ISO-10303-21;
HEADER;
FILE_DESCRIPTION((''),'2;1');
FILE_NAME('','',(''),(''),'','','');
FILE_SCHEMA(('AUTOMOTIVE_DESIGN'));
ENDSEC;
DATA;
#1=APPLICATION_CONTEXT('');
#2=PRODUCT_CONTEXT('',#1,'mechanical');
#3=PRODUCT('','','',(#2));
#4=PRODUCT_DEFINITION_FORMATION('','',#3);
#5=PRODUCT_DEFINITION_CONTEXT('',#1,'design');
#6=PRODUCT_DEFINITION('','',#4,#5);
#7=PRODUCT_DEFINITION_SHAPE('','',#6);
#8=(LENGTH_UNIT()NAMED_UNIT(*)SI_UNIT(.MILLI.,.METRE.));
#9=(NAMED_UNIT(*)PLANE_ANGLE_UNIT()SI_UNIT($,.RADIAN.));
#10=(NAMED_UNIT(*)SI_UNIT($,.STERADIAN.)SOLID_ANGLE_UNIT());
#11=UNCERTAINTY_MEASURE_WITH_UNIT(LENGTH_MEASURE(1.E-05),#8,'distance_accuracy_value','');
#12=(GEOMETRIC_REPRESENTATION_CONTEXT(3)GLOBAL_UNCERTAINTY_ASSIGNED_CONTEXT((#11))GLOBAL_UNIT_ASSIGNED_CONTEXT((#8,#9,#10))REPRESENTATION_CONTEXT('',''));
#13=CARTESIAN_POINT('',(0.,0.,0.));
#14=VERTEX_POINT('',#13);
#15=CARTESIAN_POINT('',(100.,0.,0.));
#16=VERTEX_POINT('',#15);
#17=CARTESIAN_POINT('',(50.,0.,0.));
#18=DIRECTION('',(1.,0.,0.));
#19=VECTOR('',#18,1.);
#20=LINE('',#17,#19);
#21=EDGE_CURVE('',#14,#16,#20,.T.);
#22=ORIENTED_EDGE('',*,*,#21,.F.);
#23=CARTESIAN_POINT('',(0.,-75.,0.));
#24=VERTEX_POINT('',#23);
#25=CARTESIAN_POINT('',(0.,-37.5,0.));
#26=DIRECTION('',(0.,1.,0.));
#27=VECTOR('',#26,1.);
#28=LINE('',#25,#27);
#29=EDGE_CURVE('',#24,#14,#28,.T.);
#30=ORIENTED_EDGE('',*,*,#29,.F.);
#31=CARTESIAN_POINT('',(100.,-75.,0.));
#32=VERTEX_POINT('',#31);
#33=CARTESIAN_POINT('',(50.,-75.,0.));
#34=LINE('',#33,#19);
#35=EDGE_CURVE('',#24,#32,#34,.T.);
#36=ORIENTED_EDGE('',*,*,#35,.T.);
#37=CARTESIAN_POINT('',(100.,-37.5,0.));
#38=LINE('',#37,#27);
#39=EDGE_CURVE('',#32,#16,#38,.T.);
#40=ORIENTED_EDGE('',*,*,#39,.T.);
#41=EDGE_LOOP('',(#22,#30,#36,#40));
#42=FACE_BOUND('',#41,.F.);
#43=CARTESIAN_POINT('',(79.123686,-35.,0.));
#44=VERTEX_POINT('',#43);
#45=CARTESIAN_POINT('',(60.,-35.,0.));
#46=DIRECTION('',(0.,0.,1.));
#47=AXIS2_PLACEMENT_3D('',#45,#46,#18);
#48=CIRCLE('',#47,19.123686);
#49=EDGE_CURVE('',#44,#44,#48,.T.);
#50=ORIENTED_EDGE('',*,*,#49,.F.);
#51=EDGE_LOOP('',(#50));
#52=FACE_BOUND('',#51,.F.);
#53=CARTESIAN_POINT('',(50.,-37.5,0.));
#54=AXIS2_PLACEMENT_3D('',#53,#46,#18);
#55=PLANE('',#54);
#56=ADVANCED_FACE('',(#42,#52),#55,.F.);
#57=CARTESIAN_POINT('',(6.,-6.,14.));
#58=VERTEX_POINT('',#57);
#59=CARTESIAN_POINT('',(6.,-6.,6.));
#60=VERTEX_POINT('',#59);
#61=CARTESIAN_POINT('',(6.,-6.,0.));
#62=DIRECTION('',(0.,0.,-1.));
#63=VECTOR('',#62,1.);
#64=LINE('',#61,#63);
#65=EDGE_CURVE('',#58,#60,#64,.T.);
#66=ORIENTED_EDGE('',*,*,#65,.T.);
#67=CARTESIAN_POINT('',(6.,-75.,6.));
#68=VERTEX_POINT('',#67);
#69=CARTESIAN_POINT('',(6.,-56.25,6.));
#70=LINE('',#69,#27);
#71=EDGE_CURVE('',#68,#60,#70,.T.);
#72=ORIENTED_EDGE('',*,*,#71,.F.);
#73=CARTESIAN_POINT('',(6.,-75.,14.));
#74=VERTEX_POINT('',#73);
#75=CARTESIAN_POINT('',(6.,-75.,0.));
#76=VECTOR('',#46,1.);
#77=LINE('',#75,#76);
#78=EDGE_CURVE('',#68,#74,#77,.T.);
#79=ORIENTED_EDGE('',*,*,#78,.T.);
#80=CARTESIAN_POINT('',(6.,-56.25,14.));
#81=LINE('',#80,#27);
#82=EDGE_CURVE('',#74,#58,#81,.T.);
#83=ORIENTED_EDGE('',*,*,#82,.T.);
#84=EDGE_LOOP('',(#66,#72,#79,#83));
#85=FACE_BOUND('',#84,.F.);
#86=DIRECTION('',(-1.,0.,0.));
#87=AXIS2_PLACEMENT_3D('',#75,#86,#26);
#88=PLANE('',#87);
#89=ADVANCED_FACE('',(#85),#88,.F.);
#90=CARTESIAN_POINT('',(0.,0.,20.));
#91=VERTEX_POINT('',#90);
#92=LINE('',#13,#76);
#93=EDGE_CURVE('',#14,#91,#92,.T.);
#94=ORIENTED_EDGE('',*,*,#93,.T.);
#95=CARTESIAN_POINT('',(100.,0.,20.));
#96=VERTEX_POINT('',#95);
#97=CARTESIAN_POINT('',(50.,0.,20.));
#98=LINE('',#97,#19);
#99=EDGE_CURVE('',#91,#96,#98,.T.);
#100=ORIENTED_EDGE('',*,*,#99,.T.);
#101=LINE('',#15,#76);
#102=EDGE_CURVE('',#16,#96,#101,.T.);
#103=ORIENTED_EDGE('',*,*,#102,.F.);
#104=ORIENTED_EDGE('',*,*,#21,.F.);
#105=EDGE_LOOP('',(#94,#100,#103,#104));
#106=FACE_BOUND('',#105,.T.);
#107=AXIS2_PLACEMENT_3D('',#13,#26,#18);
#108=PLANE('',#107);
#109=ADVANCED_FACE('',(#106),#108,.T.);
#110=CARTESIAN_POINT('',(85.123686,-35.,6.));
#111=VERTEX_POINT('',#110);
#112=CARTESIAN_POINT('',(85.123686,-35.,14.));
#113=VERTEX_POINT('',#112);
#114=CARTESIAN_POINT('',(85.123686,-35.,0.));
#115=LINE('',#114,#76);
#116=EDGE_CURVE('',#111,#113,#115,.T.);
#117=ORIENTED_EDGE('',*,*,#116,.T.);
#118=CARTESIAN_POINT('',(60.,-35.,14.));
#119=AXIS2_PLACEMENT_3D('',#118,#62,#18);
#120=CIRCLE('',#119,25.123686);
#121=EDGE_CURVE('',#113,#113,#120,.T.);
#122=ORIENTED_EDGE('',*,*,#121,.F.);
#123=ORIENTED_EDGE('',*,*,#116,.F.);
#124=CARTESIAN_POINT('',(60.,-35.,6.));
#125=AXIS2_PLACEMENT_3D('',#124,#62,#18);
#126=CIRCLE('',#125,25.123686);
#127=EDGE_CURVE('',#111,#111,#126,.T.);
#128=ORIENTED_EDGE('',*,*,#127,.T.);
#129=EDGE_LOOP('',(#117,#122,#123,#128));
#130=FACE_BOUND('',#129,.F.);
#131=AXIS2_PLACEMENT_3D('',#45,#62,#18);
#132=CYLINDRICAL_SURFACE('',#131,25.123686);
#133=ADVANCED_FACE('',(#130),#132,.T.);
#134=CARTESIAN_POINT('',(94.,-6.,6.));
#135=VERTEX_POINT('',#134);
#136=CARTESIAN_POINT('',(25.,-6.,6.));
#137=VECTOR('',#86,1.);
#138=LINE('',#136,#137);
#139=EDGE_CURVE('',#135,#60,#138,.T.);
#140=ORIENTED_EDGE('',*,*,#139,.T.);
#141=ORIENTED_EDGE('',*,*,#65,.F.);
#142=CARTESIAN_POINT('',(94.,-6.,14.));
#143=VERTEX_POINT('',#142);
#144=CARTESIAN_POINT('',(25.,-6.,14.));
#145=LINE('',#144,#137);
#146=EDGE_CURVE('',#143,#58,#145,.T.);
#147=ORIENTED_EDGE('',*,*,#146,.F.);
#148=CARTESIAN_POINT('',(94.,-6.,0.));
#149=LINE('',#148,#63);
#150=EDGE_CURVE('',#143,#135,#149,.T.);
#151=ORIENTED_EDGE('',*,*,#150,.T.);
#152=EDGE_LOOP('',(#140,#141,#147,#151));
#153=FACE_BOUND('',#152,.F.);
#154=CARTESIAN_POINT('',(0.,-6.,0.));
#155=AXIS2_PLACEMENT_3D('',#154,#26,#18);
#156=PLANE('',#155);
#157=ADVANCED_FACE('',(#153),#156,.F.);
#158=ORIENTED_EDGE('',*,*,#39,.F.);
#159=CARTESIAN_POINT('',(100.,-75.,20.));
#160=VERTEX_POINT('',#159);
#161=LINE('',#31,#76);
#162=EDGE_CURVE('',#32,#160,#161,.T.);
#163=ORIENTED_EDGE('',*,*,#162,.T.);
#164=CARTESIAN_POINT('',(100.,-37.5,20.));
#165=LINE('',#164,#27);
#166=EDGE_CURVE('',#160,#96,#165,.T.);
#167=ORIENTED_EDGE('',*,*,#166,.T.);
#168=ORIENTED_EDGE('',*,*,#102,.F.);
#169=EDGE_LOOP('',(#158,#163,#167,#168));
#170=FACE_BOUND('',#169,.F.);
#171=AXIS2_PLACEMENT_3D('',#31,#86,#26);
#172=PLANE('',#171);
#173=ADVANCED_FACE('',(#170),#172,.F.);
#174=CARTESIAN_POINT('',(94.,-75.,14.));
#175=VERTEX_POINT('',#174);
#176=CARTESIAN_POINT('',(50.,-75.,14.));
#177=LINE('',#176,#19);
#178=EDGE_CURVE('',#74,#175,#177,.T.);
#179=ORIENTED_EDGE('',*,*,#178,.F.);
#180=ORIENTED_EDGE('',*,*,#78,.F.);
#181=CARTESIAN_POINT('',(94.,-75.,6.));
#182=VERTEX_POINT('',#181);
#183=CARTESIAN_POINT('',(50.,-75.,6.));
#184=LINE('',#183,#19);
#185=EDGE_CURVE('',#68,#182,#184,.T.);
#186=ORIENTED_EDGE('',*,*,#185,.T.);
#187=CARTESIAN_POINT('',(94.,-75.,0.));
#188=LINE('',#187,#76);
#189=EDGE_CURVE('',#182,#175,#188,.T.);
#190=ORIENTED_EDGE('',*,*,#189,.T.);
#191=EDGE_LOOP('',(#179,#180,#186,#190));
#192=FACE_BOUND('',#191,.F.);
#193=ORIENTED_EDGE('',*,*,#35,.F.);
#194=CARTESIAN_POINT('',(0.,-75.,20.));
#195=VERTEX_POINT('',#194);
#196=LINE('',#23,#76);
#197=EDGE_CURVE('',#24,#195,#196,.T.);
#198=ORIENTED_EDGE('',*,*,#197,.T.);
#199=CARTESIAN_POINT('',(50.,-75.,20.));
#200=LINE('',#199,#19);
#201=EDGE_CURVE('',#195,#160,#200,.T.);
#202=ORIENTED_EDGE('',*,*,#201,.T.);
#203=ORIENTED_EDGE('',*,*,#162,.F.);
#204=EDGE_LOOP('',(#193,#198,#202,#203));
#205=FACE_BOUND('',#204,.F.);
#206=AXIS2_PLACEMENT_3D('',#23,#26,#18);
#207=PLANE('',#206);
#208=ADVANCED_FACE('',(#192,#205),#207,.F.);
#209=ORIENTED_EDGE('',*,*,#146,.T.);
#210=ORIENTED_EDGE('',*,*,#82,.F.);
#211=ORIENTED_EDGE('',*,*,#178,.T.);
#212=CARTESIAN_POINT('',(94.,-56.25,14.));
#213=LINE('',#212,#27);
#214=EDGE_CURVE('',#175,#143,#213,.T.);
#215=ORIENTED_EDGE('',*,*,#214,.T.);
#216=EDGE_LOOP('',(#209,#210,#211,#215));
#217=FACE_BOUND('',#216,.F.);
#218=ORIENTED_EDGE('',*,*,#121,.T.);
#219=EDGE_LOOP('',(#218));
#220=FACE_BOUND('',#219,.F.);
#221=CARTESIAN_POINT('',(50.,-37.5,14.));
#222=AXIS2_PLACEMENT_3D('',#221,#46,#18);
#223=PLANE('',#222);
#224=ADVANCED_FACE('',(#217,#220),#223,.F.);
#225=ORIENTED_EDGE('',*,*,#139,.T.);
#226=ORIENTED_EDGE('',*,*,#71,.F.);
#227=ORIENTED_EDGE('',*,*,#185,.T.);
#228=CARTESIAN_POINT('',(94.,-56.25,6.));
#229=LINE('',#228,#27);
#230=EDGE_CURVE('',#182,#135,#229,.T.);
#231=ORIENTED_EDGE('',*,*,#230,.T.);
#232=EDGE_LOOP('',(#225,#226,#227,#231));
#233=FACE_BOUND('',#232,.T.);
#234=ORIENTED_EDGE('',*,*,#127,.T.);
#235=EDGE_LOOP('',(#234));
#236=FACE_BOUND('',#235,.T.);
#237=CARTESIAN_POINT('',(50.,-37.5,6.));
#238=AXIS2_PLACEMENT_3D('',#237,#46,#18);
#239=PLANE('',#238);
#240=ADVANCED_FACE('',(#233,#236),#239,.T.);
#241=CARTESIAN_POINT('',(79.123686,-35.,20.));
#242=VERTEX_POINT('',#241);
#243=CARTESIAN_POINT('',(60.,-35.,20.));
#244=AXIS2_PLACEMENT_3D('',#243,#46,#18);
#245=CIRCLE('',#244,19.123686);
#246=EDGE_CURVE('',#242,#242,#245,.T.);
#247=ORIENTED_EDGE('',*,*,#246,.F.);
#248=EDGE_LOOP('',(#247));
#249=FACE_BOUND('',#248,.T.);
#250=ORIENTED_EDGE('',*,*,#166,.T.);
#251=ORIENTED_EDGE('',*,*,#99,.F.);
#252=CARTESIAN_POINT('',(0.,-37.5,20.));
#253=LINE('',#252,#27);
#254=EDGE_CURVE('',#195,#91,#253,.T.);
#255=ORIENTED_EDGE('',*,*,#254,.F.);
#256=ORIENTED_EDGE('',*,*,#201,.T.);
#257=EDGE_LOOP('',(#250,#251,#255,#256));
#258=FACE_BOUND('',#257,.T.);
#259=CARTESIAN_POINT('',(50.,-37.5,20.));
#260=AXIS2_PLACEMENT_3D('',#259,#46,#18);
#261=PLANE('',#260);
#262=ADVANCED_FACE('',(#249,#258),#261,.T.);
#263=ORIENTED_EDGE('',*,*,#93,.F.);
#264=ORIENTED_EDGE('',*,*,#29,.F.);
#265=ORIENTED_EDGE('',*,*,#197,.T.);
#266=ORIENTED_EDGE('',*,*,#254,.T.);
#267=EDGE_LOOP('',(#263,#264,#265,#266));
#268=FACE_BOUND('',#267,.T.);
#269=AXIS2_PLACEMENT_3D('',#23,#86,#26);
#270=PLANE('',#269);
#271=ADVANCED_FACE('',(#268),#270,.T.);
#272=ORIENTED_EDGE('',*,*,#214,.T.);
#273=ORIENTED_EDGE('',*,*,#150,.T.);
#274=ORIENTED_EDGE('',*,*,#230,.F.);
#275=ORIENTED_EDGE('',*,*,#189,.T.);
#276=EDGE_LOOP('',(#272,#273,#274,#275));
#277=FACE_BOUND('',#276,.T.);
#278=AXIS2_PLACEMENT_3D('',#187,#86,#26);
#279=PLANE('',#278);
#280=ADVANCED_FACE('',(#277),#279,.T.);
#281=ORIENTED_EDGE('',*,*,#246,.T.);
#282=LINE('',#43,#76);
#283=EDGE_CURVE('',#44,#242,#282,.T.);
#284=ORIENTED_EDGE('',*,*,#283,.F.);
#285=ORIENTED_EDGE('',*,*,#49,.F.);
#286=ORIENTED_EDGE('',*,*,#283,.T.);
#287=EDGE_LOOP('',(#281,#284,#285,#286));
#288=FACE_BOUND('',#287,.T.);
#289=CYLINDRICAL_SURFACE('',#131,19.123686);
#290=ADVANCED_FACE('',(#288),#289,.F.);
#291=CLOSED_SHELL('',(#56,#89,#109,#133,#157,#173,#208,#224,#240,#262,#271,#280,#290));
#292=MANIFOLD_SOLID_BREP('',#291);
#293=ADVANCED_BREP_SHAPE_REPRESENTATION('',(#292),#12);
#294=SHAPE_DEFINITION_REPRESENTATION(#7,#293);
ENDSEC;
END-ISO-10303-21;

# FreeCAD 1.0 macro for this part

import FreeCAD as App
import Part
import Sketcher

V = App.Vector


def faces_at(feature, points):
    """Names of the faces that lie closest to the given points."""
    faces = feature.Shape.Faces
    near = lambda p: min(range(len(faces)), key=lambda i: faces[i].distToShape(Part.Vertex(*p))[0])
    return sorted({f"Face{near(p) + 1}" for p in points})


def add_polygon(sketch, points):
    """Adds a closed chain of lines whose ends are joined by coincident constraints."""
    first, n = sketch.GeometryCount, len(points)
    for a, b in zip(points, points[1:] + points[:1]):
        sketch.addGeometry(Part.LineSegment(App.Vector(*a, 0), App.Vector(*b, 0)), False)
    for i in range(n):
        sketch.addConstraint(Sketcher.Constraint("Coincident", first + i, 2, first + (i + 1) % n, 1))

doc = App.newDocument("Part")
body = doc.addObject("PartDesign::Body", "Body")

# Sketch on XY plane
sketch1 = doc.addObject("Sketcher::SketchObject", "Sketch")
body.addObject(sketch1)
sketch1.AttachmentSupport = (doc.XY_Plane, [""])
sketch1.MapMode = "FlatFace"
add_polygon(sketch1, [(0, 0), (0, -75), (100, -75), (100, 0)])  # lines 0-3
sketch1.addGeometry(Part.Circle(V(60, -35, 0), V(0, 0, 1), 19), False)  # 4
sketch1.addConstraint([
    Sketcher.Constraint("Vertical", 0),
    Sketcher.Constraint("Horizontal", 1),
    Sketcher.Constraint("Vertical", 2),
    Sketcher.Constraint("Horizontal", 3),
    Sketcher.Constraint("Coincident", 3, 2, -1, 1),
    Sketcher.Constraint("DistanceX", 1, 1, 1, 2, 100.0),
    Sketcher.Constraint("DistanceY", 0, 2, 0, 1, 75.0),
    Sketcher.Constraint("DistanceX", -1, 1, 4, 3, 60.0),
    Sketcher.Constraint("DistanceY", 4, 3, -1, 1, 35.0),
    Sketcher.Constraint("Diameter", 4, 38.247372),
])
pad1 = doc.addObject("PartDesign::Pad", "Pad")
body.addObject(pad1)
pad1.Profile = sketch1
pad1.Length = 20
doc.recompute()

thickness = doc.addObject("PartDesign::Thickness", "Thickness")
body.addObject(thickness)
thickness.Base = (pad1, faces_at(pad1, [(50, -75, 10)]))
thickness.Value = 6
thickness.Reversed = True
thickness.Join = "Arc"

doc.recompute()
